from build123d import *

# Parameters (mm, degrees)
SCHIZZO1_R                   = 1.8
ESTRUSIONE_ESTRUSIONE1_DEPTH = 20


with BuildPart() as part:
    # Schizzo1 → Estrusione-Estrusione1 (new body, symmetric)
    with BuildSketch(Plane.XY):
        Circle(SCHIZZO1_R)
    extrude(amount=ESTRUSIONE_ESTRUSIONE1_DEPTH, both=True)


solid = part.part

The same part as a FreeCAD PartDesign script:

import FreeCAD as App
import Part
import Sketcher

doc = App.newDocument("Part")
body = doc.addObject("PartDesign::Body", "Body")

sketch1 = body.newObject("Sketcher::SketchObject", "Sketch")
sketch1.AttachmentSupport = (doc.getObject("XY_Plane"), [""])
sketch1.MapMode = "FlatFace"
sketch1.addGeometry(Part.Circle(App.Vector(0, 0, 0), App.Vector(0, 0, 1), 1.8), False)
sketch1.addConstraint([
    Sketcher.Constraint("Coincident", 0, 3, -1, 1),
    Sketcher.Constraint("Diameter", 0, 3.6),
])
pad1 = body.newObject("PartDesign::Pad", "Pad")
pad1.Profile = sketch1
pad1.Length = 40
pad1.Midplane = True

doc.recompute()
